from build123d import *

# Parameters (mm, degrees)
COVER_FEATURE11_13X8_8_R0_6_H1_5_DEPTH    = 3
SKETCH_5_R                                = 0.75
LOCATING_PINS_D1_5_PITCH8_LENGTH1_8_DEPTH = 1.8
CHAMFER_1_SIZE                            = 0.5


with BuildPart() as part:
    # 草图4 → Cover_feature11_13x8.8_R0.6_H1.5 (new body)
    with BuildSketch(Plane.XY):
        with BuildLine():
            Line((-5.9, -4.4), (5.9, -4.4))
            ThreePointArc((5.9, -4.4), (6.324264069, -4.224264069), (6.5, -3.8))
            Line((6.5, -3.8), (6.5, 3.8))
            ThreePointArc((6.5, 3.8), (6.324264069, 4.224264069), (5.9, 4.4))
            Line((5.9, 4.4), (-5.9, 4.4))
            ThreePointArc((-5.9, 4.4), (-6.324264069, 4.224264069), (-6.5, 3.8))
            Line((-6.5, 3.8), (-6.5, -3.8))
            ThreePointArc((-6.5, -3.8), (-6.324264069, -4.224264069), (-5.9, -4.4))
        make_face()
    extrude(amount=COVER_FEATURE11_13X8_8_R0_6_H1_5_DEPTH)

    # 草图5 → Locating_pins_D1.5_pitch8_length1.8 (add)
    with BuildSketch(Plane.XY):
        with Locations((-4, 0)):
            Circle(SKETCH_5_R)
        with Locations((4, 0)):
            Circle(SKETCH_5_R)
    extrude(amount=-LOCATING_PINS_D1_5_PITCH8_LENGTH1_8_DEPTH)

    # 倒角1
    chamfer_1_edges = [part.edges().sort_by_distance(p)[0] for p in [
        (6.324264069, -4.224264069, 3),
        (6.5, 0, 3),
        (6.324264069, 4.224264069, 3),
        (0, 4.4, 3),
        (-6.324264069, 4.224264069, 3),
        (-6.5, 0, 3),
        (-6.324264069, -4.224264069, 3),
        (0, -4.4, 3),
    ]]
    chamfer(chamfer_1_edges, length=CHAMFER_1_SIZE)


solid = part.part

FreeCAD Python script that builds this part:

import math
import FreeCAD as App
import Part
import Sketcher
from FreeCAD import Vector


def edges_at(feature, points):
    """Names of the edges that pass closest to the given points."""
    edges = feature.Shape.Edges
    near = lambda p: min(range(len(edges)), key=lambda i: edges[i].distToShape(Part.Vertex(*p))[0])
    return sorted({f"Edge{near(p) + 1}" for p in points})

doc = App.newDocument("Part")
params = doc.addObject("Spreadsheet::Sheet", "Params")
for row, (alias, value) in enumerate([
    ("sketch1_radius", "0.6 mm"),
    ("sketch1_width", "11.8 mm"),
    ("sketch1_height", "7.6 mm"),
    ("pad1_length", "3 mm"),
    ("sketch2_diameter", "1.5 mm"),
    ("pad2_length", "1.8 mm"),
    ("chamfer_size", "0.5 mm"),
], start=1):
    params.set(f"A{row}", alias)
    params.set(f"B{row}", "=" + value)
    params.setAlias(f"B{row}", alias)

body = doc.addObject("PartDesign::Body", "Body")

sketch1 = body.newObject("Sketcher::SketchObject", "Sketch")
sketch1.AttachmentSupport = (doc.getObject("XY_Plane"), [""])
sketch1.MapMode = "FlatFace"
sketch1.addGeometry([
    Part.LineSegment(Vector(-5.9, -4.4, 0), Vector(5.9, -4.4, 0)),
    Part.ArcOfCircle(Part.Circle(Vector(5.9, -3.8, 0), Vector(0, 0, 1), 0.6), math.radians(-90), math.radians(0)),
    Part.LineSegment(Vector(6.5, -3.8, 0), Vector(6.5, 3.8, 0)),
    Part.ArcOfCircle(Part.Circle(Vector(5.9, 3.8, 0), Vector(0, 0, 1), 0.6), math.radians(0), math.radians(90)),
    Part.LineSegment(Vector(5.9, 4.4, 0), Vector(-5.9, 4.4, 0)),
    Part.ArcOfCircle(Part.Circle(Vector(-5.9, 3.8, 0), Vector(0, 0, 1), 0.6), math.radians(90), math.radians(180)),
    Part.LineSegment(Vector(-6.5, 3.8, 0), Vector(-6.5, -3.8, 0)),
    Part.ArcOfCircle(Part.Circle(Vector(-5.9, -3.8, 0), Vector(0, 0, 1), 0.6), math.radians(180), math.radians(270)),
], False)
sketch1.addConstraint([
    Sketcher.Constraint("Tangent", 0, 2, 1, 1),
    Sketcher.Constraint("Tangent", 1, 2, 2, 1),
    Sketcher.Constraint("Tangent", 2, 2, 3, 1),
    Sketcher.Constraint("Tangent", 3, 2, 4, 1),
    Sketcher.Constraint("Tangent", 4, 2, 5, 1),
    Sketcher.Constraint("Tangent", 5, 2, 6, 1),
    Sketcher.Constraint("Tangent", 6, 2, 7, 1),
    Sketcher.Constraint("Tangent", 7, 2, 0, 1),
    Sketcher.Constraint("Horizontal", 0),
    Sketcher.Constraint("Vertical", 2),
    Sketcher.Constraint("Horizontal", 4),
    Sketcher.Constraint("Vertical", 6),
    Sketcher.Constraint("Equal", 1, 3),
    Sketcher.Constraint("Equal", 3, 5),
    Sketcher.Constraint("Equal", 5, 7),
    Sketcher.Constraint("Symmetric", 1, 3, 5, 3, -1, 1),
    Sketcher.Constraint("Radius", 1, 0.6),
    Sketcher.Constraint("DistanceX", 0, 1, 0, 2, 11.8),
    Sketcher.Constraint("DistanceY", 2, 1, 2, 2, 7.6),
])
sketch1.setExpression("Constraints[16]", "Params.sketch1_radius")
sketch1.setExpression("Constraints[17]", "Params.sketch1_width")
sketch1.setExpression("Constraints[18]", "Params.sketch1_height")
pad1 = body.newObject("PartDesign::Pad", "Pad")
pad1.Profile = sketch1
pad1.setExpression("Length", "Params.pad1_length")

sketch2 = body.newObject("Sketcher::SketchObject", "Sketch001")
sketch2.AttachmentSupport = (doc.getObject("XY_Plane"), [""])
sketch2.MapMode = "FlatFace"
sketch2.addGeometry([
    Part.Circle(Vector(-4, 0, 0), Vector(0, 0, 1), 0.8),
    Part.Circle(Vector(4, 0, 0), Vector(0, 0, 1), 0.8),
], False)
sketch2.addConstraint([
    Sketcher.Constraint("Equal", 0, 1),
    Sketcher.Constraint("Symmetric", 0, 3, 1, 3, -1, 1),
    Sketcher.Constraint("PointOnObject", 0, 3, -1),
    Sketcher.Constraint("Diameter", 0, 1.5),
    Sketcher.Constraint("DistanceX", 0, 3, -1, 1, 4.0),
])
sketch2.setExpression("Constraints[3]", "Params.sketch2_diameter")
pad2 = body.newObject("PartDesign::Pad", "Pad001")
pad2.Profile = sketch2
pad2.setExpression("Length", "Params.pad2_length")
pad2.Reversed = True
doc.recompute()

chamfer = body.newObject("PartDesign::Chamfer", "Chamfer")
chamfer.Base = (pad2, edges_at(pad2, [
    (6.324, -4.224, 3),
    (6.5, 0, 3),
    (6.324, 4.224, 3),
    (0, 4.4, 3),
    (-6.324, 4.224, 3),
    (-6.5, 0, 3),
    (-6.324, -4.224, 3),
    (0, -4.4, 3),
]))
chamfer.setExpression("Size", "Params.chamfer_size")

doc.recompute()
